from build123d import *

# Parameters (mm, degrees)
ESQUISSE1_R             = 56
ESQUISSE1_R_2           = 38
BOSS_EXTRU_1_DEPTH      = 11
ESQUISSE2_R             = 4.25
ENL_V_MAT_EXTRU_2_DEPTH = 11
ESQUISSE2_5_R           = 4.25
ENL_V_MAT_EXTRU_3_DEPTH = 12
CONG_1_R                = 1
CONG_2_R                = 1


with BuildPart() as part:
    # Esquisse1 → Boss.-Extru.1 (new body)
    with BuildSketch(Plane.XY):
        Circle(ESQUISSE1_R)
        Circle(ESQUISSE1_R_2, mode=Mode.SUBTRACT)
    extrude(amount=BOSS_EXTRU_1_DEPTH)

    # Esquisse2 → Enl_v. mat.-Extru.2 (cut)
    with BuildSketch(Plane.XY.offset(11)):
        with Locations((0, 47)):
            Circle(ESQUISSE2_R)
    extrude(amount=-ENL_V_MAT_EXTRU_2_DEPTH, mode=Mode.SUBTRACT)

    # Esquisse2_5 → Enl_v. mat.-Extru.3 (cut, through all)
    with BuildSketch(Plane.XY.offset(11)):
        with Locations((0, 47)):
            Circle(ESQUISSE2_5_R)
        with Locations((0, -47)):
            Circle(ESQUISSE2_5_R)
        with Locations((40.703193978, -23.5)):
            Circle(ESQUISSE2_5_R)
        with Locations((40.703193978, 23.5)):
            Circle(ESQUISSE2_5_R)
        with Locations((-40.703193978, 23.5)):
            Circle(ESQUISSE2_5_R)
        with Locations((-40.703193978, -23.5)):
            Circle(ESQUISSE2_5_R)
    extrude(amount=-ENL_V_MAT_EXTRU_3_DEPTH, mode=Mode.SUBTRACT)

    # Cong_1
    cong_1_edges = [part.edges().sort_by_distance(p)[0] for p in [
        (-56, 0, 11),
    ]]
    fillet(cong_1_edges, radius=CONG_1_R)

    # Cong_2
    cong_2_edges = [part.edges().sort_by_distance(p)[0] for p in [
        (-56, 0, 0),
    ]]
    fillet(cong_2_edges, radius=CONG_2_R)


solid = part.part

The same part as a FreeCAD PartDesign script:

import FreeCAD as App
import Part
import Sketcher

V = App.Vector


def edges_at(feature, points):
    """Names of the edges that pass closest to the given points."""
    edges = feature.Shape.Edges
    near = lambda p: min(range(len(edges)), key=lambda i: edges[i].distToShape(Part.Vertex(*p))[0])
    return sorted({f"Edge{near(p) + 1}" for p in points})

doc = App.newDocument("Part")
body = doc.addObject("PartDesign::Body", "Body")

# Sketch on XY plane
sketch1 = body.newObject("Sketcher::SketchObject", "Sketch")
sketch1.AttachmentSupport = (doc.getObject("XY_Plane"), [""])
sketch1.MapMode = "FlatFace"
sketch1.addGeometry(Part.Circle(V(0, 0, 0), V(0, 0, 1), 56), False)
sketch1.addGeometry(Part.Circle(V(0, 0, 0), V(0, 0, 1), 38), False)
sketch1.addConstraint(Sketcher.Constraint("Coincident", 0, 3, -1, 1))
sketch1.addConstraint(Sketcher.Constraint("Coincident", 1, 3, -1, 1))
sketch1.addConstraint(Sketcher.Constraint("Diameter", 0, 112.0))
sketch1.addConstraint(Sketcher.Constraint("Diameter", 1, 76.0))
pad1 = body.newObject("PartDesign::Pad", "Pad")
pad1.Profile = sketch1
pad1.Length = 11

# Sketch on XY plane
sketch2 = body.newObject("Sketcher::SketchObject", "Sketch001")
sketch2.AttachmentSupport = (doc.getObject("XY_Plane"), [""])
sketch2.MapMode = "FlatFace"
sketch2.AttachmentOffset = App.Placement(V(0, 0, 11), App.Rotation())
sketch2.addGeometry(Part.Circle(V(0, 47, 0), V(0, 0, 1), 4.2), False)
sketch2.addConstraint(Sketcher.Constraint("PointOnObject", 0, 3, -2))
sketch2.addConstraint(Sketcher.Constraint("Diameter", 0, 8.5))
sketch2.addConstraint(Sketcher.Constraint("DistanceY", -1, 1, 0, 3, 47.0))
pocket1 = body.newObject("PartDesign::Pocket", "Pocket")
pocket1.Profile = sketch2
pocket1.Length = 11

# Sketch on XY plane
sketch3 = body.newObject("Sketcher::SketchObject", "Sketch002")
sketch3.AttachmentSupport = (doc.getObject("XY_Plane"), [""])
sketch3.MapMode = "FlatFace"
sketch3.AttachmentOffset = App.Placement(V(0, 0, 11), App.Rotation())
sketch3.addGeometry(Part.Circle(V(0, 47, 0), V(0, 0, 1), 4.2), False)
sketch3.addGeometry(Part.Circle(V(0, -47, 0), V(0, 0, 1), 4.2), False)
sketch3.addGeometry(Part.Circle(V(40.7, -23.5, 0), V(0, 0, 1), 4.2), False)
sketch3.addGeometry(Part.Circle(V(40.7, 23.5, 0), V(0, 0, 1), 4.2), False)
sketch3.addGeometry(Part.Circle(V(-40.7, 23.5, 0), V(0, 0, 1), 4.2), False)
sketch3.addGeometry(Part.Circle(V(-40.7, -23.5, 0), V(0, 0, 1), 4.2), False)
sketch3.addConstraint(Sketcher.Constraint("Equal", 0, 1))
sketch3.addConstraint(Sketcher.Constraint("Equal", 1, 2))
sketch3.addConstraint(Sketcher.Constraint("Equal", 2, 3))
sketch3.addConstraint(Sketcher.Constraint("Equal", 3, 4))
sketch3.addConstraint(Sketcher.Constraint("Equal", 4, 5))
sketch3.addConstraint(Sketcher.Constraint("Symmetric", 0, 3, 1, 3, -1, 1))
sketch3.addConstraint(Sketcher.Constraint("Symmetric", 2, 3, 4, 3, -1, 1))
sketch3.addConstraint(Sketcher.Constraint("Symmetric", 3, 3, 5, 3, -1, 1))
sketch3.addConstraint(Sketcher.Constraint("Symmetric", 3, 3, 4, 3, -2))
sketch3.addConstraint(Sketcher.Constraint("PointOnObject", 0, 3, -2))
sketch3.addConstraint(Sketcher.Constraint("Diameter", 0, 8.5))
sketch3.addConstraint(Sketcher.Constraint("DistanceY", -1, 1, 0, 3, 47.0))
sketch3.addConstraint(Sketcher.Constraint("DistanceY", 2, 3, 3, 3, 47.0))
sketch3.addConstraint(Sketcher.Constraint("DistanceX", -1, 1, 2, 3, 40.703194))
pocket2 = body.newObject("PartDesign::Pocket", "Pocket001")
pocket2.Profile = sketch3
pocket2.Type = "ThroughAll"
doc.recompute()

fillet = body.newObject("PartDesign::Fillet", "Fillet")
fillet.Base = (pocket2, edges_at(pocket2, [(-56, 0, 11)]))
fillet.Radius = 1
doc.recompute()

fillet2 = body.newObject("PartDesign::Fillet", "Fillet001")
fillet2.Base = (fillet, edges_at(fillet, [(-56, 0, 0)]))
fillet2.Radius = 1

doc.recompute()
